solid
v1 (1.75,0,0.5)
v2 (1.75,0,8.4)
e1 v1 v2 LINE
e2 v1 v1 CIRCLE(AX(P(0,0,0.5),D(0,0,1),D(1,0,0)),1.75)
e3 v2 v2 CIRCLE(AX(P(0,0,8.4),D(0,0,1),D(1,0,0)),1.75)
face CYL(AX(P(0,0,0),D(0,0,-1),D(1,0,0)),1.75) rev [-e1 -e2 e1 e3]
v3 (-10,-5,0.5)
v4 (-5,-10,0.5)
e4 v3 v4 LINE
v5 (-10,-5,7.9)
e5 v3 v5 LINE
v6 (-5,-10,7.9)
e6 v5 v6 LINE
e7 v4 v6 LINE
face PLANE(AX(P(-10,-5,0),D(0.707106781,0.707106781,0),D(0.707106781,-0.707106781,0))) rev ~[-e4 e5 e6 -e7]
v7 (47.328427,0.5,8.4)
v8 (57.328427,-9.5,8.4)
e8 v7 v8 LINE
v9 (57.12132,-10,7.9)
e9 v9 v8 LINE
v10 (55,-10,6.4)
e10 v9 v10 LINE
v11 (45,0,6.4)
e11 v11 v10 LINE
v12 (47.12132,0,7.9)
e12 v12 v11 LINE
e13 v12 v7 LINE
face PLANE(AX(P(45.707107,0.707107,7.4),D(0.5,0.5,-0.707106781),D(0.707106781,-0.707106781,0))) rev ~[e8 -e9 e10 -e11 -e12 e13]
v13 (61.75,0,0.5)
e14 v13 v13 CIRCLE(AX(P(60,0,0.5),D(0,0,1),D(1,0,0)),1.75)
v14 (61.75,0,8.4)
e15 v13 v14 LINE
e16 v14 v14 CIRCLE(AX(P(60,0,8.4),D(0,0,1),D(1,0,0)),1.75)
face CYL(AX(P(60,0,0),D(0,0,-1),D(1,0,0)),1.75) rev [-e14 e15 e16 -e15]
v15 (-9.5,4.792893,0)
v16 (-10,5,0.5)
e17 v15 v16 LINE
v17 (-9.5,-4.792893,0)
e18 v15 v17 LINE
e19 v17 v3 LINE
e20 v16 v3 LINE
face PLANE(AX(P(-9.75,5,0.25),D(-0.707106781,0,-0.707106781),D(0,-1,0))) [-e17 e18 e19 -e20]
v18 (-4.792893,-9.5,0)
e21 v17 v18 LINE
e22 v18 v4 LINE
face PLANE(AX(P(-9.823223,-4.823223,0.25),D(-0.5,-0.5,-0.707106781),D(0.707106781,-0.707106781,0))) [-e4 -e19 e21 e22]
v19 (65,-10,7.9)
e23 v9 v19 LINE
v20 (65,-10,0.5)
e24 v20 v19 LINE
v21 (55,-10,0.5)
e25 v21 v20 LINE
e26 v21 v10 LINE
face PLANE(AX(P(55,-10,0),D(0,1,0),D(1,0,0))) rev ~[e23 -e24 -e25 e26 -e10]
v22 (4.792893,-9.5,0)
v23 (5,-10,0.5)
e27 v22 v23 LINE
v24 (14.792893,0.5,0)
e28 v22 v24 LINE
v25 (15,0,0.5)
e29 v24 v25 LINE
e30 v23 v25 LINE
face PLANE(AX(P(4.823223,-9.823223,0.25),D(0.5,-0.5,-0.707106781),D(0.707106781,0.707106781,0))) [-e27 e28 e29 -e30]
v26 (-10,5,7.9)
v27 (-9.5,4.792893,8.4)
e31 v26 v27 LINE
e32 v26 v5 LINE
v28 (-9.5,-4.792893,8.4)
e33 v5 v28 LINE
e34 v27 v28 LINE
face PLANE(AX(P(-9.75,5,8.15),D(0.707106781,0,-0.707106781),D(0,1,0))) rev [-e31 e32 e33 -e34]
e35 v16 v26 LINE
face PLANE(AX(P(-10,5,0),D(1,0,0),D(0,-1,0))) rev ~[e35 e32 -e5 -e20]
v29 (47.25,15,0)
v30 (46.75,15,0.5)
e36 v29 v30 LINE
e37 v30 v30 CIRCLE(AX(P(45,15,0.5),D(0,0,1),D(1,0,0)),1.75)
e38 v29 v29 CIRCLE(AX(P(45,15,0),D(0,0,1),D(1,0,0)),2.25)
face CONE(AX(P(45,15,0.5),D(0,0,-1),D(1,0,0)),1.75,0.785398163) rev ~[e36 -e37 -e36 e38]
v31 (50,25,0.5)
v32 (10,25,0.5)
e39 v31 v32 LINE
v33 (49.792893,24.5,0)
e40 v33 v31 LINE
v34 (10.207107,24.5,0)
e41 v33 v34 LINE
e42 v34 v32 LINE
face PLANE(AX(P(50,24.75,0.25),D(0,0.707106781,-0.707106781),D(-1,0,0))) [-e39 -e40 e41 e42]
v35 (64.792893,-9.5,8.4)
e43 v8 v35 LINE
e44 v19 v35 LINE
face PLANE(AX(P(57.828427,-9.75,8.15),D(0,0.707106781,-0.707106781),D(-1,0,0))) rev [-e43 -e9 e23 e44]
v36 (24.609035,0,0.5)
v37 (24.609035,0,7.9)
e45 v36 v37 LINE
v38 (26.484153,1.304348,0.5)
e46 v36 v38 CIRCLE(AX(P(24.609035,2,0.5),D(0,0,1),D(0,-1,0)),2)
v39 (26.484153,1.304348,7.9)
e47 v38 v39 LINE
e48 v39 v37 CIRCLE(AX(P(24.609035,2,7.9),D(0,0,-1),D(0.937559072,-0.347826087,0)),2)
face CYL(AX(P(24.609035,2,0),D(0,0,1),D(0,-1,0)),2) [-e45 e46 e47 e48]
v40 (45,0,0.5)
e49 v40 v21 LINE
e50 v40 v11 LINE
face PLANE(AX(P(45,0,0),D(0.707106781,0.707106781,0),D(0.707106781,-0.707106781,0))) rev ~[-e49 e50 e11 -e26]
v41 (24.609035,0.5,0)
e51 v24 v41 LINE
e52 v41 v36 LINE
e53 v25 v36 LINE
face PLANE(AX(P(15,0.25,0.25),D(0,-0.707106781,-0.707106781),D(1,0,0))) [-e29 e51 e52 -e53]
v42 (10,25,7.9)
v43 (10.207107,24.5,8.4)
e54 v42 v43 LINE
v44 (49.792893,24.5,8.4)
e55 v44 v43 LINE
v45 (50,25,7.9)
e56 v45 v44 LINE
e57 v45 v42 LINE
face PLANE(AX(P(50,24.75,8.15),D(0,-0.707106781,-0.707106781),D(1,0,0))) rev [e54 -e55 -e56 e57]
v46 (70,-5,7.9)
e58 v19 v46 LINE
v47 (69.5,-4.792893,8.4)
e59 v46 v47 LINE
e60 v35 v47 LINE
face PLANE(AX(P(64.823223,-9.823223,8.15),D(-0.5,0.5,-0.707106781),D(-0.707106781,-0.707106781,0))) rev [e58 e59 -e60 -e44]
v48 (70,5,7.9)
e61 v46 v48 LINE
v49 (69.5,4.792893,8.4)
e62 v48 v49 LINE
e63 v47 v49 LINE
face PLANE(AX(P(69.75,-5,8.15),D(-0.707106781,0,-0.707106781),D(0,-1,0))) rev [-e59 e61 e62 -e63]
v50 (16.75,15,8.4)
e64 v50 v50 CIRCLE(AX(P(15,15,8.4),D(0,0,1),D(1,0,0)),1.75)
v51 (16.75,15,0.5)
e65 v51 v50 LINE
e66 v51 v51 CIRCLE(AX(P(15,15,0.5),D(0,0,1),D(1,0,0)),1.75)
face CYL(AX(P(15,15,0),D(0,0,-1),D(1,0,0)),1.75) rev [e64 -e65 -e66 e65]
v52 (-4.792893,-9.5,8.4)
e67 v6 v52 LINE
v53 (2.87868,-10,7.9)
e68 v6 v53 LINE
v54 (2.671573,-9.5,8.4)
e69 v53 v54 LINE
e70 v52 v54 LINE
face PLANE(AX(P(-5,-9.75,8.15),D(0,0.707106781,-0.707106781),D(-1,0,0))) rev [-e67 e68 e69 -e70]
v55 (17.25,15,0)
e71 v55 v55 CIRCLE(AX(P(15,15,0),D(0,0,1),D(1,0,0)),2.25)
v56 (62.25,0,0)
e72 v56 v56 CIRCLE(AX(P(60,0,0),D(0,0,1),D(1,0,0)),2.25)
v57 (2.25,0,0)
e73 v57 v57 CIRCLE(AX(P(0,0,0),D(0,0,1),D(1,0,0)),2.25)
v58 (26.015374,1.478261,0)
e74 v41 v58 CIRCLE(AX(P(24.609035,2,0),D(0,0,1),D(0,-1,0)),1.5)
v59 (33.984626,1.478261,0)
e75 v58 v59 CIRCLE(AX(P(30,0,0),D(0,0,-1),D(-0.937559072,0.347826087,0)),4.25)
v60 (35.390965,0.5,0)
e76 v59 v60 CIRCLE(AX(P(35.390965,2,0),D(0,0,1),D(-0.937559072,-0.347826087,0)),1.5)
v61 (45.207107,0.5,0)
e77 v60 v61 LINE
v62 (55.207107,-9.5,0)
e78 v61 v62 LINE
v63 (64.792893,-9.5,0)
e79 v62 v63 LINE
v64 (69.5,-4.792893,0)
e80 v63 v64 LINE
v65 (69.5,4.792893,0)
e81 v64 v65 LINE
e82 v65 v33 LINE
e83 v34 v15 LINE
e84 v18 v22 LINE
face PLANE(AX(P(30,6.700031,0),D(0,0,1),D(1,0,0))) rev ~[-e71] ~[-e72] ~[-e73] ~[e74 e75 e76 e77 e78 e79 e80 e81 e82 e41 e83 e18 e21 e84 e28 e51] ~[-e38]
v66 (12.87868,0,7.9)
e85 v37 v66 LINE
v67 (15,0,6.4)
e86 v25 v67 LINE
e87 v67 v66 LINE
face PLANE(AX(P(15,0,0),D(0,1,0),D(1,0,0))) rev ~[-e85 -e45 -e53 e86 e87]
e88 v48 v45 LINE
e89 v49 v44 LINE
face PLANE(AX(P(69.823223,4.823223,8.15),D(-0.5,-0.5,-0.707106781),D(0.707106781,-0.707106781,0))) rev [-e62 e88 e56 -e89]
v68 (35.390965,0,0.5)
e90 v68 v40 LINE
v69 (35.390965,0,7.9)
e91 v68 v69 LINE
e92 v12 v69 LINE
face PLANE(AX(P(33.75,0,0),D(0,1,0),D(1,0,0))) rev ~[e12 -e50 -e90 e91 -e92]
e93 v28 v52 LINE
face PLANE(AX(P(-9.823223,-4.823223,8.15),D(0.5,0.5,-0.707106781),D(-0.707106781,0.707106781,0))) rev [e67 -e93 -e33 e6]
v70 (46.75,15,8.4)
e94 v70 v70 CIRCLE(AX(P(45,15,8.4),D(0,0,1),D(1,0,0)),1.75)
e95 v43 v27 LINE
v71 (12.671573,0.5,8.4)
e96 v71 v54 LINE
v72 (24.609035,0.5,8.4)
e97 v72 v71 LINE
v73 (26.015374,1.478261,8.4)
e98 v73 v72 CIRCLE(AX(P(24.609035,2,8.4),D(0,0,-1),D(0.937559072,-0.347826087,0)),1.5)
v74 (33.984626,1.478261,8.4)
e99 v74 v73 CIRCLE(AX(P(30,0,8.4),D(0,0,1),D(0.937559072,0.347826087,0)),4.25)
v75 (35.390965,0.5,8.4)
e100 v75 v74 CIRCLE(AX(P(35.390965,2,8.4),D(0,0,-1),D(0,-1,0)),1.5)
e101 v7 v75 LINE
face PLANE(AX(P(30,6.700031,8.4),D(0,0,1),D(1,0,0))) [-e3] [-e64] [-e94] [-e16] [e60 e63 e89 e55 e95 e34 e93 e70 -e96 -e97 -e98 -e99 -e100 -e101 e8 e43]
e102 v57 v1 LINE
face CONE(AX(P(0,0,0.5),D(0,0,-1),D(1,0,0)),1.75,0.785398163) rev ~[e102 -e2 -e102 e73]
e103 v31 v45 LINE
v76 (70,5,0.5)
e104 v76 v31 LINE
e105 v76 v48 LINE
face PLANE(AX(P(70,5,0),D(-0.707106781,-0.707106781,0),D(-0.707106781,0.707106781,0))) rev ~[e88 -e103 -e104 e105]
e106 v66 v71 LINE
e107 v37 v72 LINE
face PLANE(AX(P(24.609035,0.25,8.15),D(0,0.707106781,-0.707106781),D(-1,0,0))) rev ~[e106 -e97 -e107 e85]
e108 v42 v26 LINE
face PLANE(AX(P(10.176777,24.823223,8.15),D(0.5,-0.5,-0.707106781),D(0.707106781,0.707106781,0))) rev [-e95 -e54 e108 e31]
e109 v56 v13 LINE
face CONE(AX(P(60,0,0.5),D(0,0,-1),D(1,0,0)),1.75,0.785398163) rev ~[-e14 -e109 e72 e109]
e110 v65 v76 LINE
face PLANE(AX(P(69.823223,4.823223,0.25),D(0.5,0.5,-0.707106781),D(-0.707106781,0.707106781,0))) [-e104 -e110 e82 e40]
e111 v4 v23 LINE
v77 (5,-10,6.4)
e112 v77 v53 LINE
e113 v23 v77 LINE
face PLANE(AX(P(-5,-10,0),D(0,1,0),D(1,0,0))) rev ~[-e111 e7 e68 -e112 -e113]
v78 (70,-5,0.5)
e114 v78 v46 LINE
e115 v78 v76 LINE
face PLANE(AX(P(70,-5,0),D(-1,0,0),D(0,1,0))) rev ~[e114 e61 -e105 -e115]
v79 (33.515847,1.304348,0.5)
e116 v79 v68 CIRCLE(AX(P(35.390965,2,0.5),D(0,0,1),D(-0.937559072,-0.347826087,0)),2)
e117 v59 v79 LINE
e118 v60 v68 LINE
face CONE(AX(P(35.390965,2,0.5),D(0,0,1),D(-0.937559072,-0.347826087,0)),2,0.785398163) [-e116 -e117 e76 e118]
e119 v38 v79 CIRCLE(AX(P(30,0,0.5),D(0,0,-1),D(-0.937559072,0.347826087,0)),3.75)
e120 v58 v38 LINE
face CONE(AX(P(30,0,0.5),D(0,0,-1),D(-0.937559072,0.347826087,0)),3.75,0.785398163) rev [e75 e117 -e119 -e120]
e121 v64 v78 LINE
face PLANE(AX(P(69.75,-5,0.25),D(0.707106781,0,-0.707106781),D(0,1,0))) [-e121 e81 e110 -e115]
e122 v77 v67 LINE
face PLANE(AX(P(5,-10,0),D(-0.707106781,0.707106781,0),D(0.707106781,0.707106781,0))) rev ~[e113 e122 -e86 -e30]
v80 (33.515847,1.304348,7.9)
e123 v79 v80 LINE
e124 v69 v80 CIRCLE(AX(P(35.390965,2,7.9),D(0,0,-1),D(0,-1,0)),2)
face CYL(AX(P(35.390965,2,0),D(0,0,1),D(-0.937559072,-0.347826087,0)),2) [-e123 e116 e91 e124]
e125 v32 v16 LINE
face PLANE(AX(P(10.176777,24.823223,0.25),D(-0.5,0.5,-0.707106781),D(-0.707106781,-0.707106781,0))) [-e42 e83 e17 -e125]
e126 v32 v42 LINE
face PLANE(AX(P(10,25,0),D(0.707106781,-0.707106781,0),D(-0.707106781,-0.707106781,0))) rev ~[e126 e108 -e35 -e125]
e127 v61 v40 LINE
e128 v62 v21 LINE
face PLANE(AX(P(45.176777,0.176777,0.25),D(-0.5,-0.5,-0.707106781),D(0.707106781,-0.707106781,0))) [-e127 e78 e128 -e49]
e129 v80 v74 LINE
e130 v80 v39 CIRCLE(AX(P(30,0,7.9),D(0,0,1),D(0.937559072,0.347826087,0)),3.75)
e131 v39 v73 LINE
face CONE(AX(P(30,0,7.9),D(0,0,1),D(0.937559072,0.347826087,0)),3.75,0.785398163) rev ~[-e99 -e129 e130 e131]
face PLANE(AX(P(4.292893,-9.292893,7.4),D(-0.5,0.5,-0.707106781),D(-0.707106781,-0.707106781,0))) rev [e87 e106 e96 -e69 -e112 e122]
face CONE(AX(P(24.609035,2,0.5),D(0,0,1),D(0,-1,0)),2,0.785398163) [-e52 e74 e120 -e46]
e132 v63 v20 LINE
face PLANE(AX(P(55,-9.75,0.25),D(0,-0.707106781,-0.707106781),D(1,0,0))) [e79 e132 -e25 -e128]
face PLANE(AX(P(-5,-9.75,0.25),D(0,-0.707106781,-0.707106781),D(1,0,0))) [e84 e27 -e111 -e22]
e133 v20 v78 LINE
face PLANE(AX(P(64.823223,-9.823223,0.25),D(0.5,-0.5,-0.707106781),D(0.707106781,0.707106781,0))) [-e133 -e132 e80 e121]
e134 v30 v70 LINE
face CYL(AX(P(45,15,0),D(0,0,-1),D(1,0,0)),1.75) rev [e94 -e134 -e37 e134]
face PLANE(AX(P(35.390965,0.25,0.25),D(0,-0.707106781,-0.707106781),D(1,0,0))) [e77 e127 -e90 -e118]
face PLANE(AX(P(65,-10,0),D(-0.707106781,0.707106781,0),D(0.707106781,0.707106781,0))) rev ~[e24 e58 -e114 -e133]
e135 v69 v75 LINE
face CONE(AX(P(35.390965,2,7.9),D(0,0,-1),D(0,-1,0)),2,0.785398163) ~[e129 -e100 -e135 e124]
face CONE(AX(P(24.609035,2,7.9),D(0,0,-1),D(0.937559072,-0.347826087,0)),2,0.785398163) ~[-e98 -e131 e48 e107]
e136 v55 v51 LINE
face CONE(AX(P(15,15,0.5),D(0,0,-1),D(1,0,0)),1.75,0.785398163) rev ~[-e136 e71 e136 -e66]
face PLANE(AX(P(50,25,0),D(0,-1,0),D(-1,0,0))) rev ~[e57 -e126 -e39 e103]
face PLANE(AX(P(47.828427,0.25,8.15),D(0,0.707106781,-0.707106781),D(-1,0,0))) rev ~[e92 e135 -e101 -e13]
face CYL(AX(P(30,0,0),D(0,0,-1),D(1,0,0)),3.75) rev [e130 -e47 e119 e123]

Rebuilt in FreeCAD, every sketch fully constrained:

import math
import FreeCAD as App
import Part
import Sketcher

V = App.Vector
Q = App.Units.Quantity


def edges_at(feature, points):
    """Names of the edges that pass closest to the given points."""
    edges = feature.Shape.Edges
    near = lambda p: min(range(len(edges)), key=lambda i: edges[i].distToShape(Part.Vertex(*p))[0])
    return sorted({f"Edge{near(p) + 1}" for p in points})

doc = App.newDocument("Part")
body = doc.addObject("PartDesign::Body", "Body")

# Sketch on XY plane
sketch1 = doc.addObject("Sketcher::SketchObject", "Sketch")
body.addObject(sketch1)
sketch1.AttachmentSupport = (doc.XY_Plane, [""])
sketch1.MapMode = "FlatFace"
sketch1.addGeometry([
    Part.LineSegment(V(-10, -5, 0), V(-5, -10, 0)),  # 0
    Part.LineSegment(V(-5, -10, 0), V(5, -10, 0)),  # 1
    Part.LineSegment(V(5, -10, 0), V(15, 0, 0)),  # 2
    Part.LineSegment(V(15, 0, 0), V(26.25, 0, 0)),  # 3
    Part.ArcOfCircle(Part.Circle(V(30, 0, 0), V(0, 0, 1), 3.75), math.radians(0), math.radians(180)),  # 4
    Part.LineSegment(V(33.75, 0, 0), V(45, 0, 0)),  # 5
    Part.LineSegment(V(45, 0, 0), V(55, -10, 0)),  # 6
    Part.LineSegment(V(55, -10, 0), V(65, -10, 0)),  # 7
    Part.LineSegment(V(65, -10, 0), V(70, -5, 0)),  # 8
    Part.LineSegment(V(70, -5, 0), V(70, 5, 0)),  # 9
    Part.LineSegment(V(70, 5, 0), V(50, 25, 0)),  # 10
    Part.LineSegment(V(50, 25, 0), V(10, 25, 0)),  # 11
    Part.LineSegment(V(10, 25, 0), V(-10, 5, 0)),  # 12
    Part.LineSegment(V(-10, 5, 0), V(-10, -5, 0)),  # 13
    Part.Circle(V(0, 0, 0), V(0, 0, 1), 1.75),  # 14
    Part.Circle(V(60, 0, 0), V(0, 0, 1), 1.75),  # 15
    Part.Circle(V(15, 15, 0), V(0, 0, 1), 1.75),  # 16
    Part.Circle(V(45, 15, 0), V(0, 0, 1), 1.75),  # 17
], False)
sketch1.addConstraint([
    Sketcher.Constraint("Coincident", 0, 2, 1, 1),
    Sketcher.Constraint("Coincident", 1, 2, 2, 1),
    Sketcher.Constraint("Coincident", 2, 2, 3, 1),
    Sketcher.Constraint("Coincident", 3, 2, 4, 2),
    Sketcher.Constraint("Coincident", 4, 1, 5, 1),
    Sketcher.Constraint("Coincident", 5, 2, 6, 1),
    Sketcher.Constraint("Coincident", 6, 2, 7, 1),
    Sketcher.Constraint("Coincident", 7, 2, 8, 1),
    Sketcher.Constraint("Coincident", 8, 2, 9, 1),
    Sketcher.Constraint("Coincident", 9, 2, 10, 1),
    Sketcher.Constraint("Coincident", 10, 2, 11, 1),
    Sketcher.Constraint("Coincident", 11, 2, 12, 1),
    Sketcher.Constraint("Coincident", 12, 2, 13, 1),
    Sketcher.Constraint("Coincident", 13, 2, 0, 1),
    Sketcher.Constraint("Horizontal", 1),
    Sketcher.Constraint("Horizontal", 3),
    Sketcher.Constraint("Horizontal", 5),
    Sketcher.Constraint("Horizontal", 7),
    Sketcher.Constraint("Vertical", 9),
    Sketcher.Constraint("Horizontal", 11),
    Sketcher.Constraint("Vertical", 13),
    Sketcher.Constraint("Coincident", 14, 3, -1, 1),
    Sketcher.Constraint("Equal", 14, 15),
    Sketcher.Constraint("Equal", 15, 16),
    Sketcher.Constraint("Equal", 16, 17),
    Sketcher.Constraint("PointOnObject", 4, 3, -1),
    Sketcher.Constraint("PointOnObject", 15, 3, -1),
    Sketcher.Constraint("PointOnObject", 2, 2, -1),
    Sketcher.Constraint("PointOnObject", 4, 1, -1),
    Sketcher.Constraint("Perpendicular", 0, 2),
    Sketcher.Constraint("Perpendicular", 2, 6),
    Sketcher.Constraint("Perpendicular", 6, 8),
    Sketcher.Constraint("Perpendicular", 8, 10),
    Sketcher.Constraint("Perpendicular", 10, 12),
    Sketcher.Constraint("Horizontal", 16, 3, 17, 3),
    Sketcher.Constraint("Horizontal", 1, 2, 6, 2),
    Sketcher.Constraint("Horizontal", 9, 2, 12, 2),
    Sketcher.Constraint("Horizontal", 8, 2, 13, 2),
    Sketcher.Constraint("Vertical", 16, 3, 2, 2),
    Sketcher.Constraint("Vertical", 17, 3, 5, 2),
    Sketcher.Constraint("Equal", 3, 5),
    Sketcher.Constraint("Equal", 1, 7),
    Sketcher.Constraint("Equal", 7, 9),
    Sketcher.Constraint("Equal", 2, 6),
    Sketcher.Constraint("Diameter", 14, Q("3.5 mm")),
    Sketcher.Constraint("DistanceX", 1, 1, 1, 2, Q("10 mm")),
    Sketcher.Constraint("DistanceX", 11, 2, 11, 1, Q("40 mm")),
    Sketcher.Constraint("Radius", 4, Q("3.75 mm")),
    Sketcher.Constraint("DistanceX", -1, 1, 4, 3, Q("30 mm")),
    Sketcher.Constraint("DistanceX", -1, 1, 15, 3, Q("60 mm")),
    Sketcher.Constraint("DistanceX", -1, 1, 16, 3, Q("15 mm")),
    Sketcher.Constraint("DistanceY", -1, 1, 16, 3, Q("15 mm")),
    Sketcher.Constraint("DistanceX", 0, 2, -1, 1, Q("5 mm")),
    Sketcher.Constraint("DistanceX", -1, 1, 8, 2, Q("70 mm")),
])
pad1 = doc.addObject("PartDesign::Pad", "Pad")
body.addObject(pad1)
pad1.Profile = sketch1
pad1.Length = 8.4
doc.recompute()

fillet = doc.addObject("PartDesign::Fillet", "Fillet")
body.addObject(fillet)
fillet.Base = (pad1, edges_at(pad1, [(33.75, 0, 4.2), (26.25, 0, 4.2)]))
fillet.Radius = 2
doc.recompute()

chamfer = doc.addObject("PartDesign::Chamfer", "Chamfer")
body.addObject(chamfer)
chamfer.Base = (fillet, edges_at(fillet, [(10, -5, 8.4), (50, -5, 8.4)]))
chamfer.Size = 2
doc.recompute()

chamfer2 = doc.addObject("PartDesign::Chamfer", "Chamfer001")
body.addObject(chamfer2)
chamfer2.Base = (chamfer, edges_at(chamfer, [
    (40.195, 0, 0),
    (34.249, 0.358, 0),
    (50, -5, 0),
    (30, 3.75, 0),
    (60, -10, 0),
    (25.751, 0.358, 0),
    (67.5, -7.5, 0),
    (19.805, 0, 0),
    (70, 0, 0),
    (10, -5, 0),
    (60, 15, 0),
    (0, -10, 0),
    (30, 25, 0),
    (-7.5, -7.5, 0),
    (0, 15, 0),
    (-10, 0, 0),
    (58.25, 0, 0),
    (43.25, 15, 0),
    (13.25, 15, 0),
    (-1.75, 0, 0),
    (18.39, 0, 8.4),
    (-1.414, -10, 8.4),
    (61.414, -10, 8.4),
    (67.5, -7.5, 8.4),
    (70, 0, 8.4),
    (-7.5, -7.5, 8.4),
    (-10, 0, 8.4),
    (0, 15, 8.4),
    (30, 25, 8.4),
    (60, 15, 8.4),
]))
chamfer2.Size = 0.5

doc.recompute()
